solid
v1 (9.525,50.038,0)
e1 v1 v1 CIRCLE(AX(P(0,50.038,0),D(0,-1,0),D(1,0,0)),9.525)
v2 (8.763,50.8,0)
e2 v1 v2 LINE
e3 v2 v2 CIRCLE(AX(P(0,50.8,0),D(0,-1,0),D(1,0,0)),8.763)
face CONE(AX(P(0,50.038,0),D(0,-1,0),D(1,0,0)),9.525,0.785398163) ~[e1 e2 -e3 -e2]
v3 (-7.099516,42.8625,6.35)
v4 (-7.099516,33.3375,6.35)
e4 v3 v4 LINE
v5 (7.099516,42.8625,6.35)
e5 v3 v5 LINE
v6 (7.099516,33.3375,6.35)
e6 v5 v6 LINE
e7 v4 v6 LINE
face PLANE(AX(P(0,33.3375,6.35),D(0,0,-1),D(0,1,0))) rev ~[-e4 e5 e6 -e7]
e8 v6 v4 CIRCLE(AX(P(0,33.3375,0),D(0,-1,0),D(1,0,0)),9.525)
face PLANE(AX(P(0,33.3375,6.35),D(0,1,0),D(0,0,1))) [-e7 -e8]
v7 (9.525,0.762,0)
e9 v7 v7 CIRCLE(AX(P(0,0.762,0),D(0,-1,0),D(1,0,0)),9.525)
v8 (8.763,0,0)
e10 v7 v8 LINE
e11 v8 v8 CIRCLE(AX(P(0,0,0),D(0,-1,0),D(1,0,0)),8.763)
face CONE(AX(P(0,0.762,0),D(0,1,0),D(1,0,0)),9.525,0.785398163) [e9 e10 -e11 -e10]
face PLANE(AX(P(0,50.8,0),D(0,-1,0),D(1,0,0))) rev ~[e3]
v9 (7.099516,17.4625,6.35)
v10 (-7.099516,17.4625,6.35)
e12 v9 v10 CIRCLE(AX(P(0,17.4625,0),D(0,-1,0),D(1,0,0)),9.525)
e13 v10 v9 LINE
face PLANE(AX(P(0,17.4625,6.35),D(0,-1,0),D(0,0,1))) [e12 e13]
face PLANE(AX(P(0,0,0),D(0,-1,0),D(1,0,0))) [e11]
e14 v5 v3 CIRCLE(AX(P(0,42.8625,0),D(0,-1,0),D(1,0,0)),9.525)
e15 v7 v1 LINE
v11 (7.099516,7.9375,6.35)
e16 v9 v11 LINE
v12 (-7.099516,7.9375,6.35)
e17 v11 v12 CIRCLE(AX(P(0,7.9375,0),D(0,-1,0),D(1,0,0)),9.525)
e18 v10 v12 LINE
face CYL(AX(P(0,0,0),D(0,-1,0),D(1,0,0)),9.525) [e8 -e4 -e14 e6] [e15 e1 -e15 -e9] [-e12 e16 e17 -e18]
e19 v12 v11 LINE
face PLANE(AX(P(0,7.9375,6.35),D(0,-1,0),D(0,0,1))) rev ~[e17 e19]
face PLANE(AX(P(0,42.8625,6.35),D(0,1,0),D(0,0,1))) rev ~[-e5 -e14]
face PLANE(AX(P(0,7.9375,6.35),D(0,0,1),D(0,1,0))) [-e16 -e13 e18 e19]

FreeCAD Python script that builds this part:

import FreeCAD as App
import Part
import Sketcher
Q = App.Units.Quantity


def edges_at(feature, points):
    """Names of the edges that pass closest to the given points."""
    edges = feature.Shape.Edges
    near = lambda p: min(range(len(edges)), key=lambda i: edges[i].distToShape(Part.Vertex(*p))[0])
    return sorted({f"Edge{near(p) + 1}" for p in points})


def add_polygon(sketch, points):
    """Adds a closed chain of lines whose ends are joined by coincident constraints."""
    first, n = sketch.GeometryCount, len(points)
    for a, b in zip(points, points[1:] + points[:1]):
        sketch.addGeometry(Part.LineSegment(App.Vector(*a, 0), App.Vector(*b, 0)), False)
    for i in range(n):
        sketch.addConstraint(Sketcher.Constraint("Coincident", first + i, 2, first + (i + 1) % n, 1))

doc = App.newDocument("Part")
params = doc.addObject("Spreadsheet::Sheet", "Params")
for row, (alias, value) in enumerate([
    ("sketch1_diameter", "0.75 in"),
    ("pad1_length", "2 in"),
    ("chamfer_size", "0.03 in"),
    ("sketch2_width", "0.375 in"),
    ("pocket1_length", "1 in"),
], start=1):
    params.set(f"A{row}", alias)
    params.set(f"B{row}", "=" + value)
    params.setAlias(f"B{row}", alias)

body = doc.addObject("PartDesign::Body", "Body")

# Sketch on XZ plane
sketch1 = doc.addObject("Sketcher::SketchObject", "Sketch")
body.addObject(sketch1)
sketch1.AttachmentSupport = (doc.XZ_Plane, [""])
sketch1.MapMode = "FlatFace"
sketch1.addGeometry(Part.Circle(App.Vector(0, 0, 0), App.Vector(0, 0, 1), 10), False)
sketch1.addConstraint([
    Sketcher.Constraint("Coincident", 0, 3, -1, 1),
    Sketcher.Constraint("Diameter", 0, Q("0.75 in")),
])
sketch1.setExpression("Constraints[1]", "Params.sketch1_diameter")
pad1 = doc.addObject("PartDesign::Pad", "Pad")
body.addObject(pad1)
pad1.Profile = sketch1
pad1.setExpression("Length", "Params.pad1_length")
pad1.Reversed = True
doc.recompute()

chamfer = doc.addObject("PartDesign::Chamfer", "Chamfer")
body.addObject(chamfer)
chamfer.Base = (pad1, edges_at(pad1, [(-9.525, 0, 0), (-9.525, 50.8, 0)]))
chamfer.setExpression("Size", "Params.chamfer_size")

# Sketch on YZ plane
sketch2 = doc.addObject("Sketcher::SketchObject", "Sketch001")
body.addObject(sketch2)
sketch2.AttachmentSupport = (doc.YZ_Plane, [""])
sketch2.MapMode = "FlatFace"
add_polygon(sketch2, [(8, 12), (8, 6), (17, 6), (17, 12)])  # lines 0-3
add_polygon(sketch2, [(33, 12), (33, 6), (43, 6), (43, 12)])  # lines 4-7
sketch2.addConstraint([
    Sketcher.Constraint("Vertical", 0),
    Sketcher.Constraint("Horizontal", 1),
    Sketcher.Constraint("Vertical", 2),
    Sketcher.Constraint("Horizontal", 3),
    Sketcher.Constraint("Vertical", 4),
    Sketcher.Constraint("Horizontal", 5),
    Sketcher.Constraint("Vertical", 6),
    Sketcher.Constraint("Horizontal", 7),
    Sketcher.Constraint("Horizontal", 1, 2, 4, 2),
    Sketcher.Constraint("Horizontal", 3, 2, 6, 2),
    Sketcher.Constraint("Equal", 3, 5),
    Sketcher.Constraint("DistanceX", 0, 2, 4, 2, Q("1 in")),
    Sketcher.Constraint("DistanceX", 1, 1, 1, 2, Q("0.375 in")),
    Sketcher.Constraint("DistanceY", -1, 1, 0, 2, Q("0.25 in")),
    Sketcher.Constraint("DistanceX", -1, 1, 0, 2, Q("0.3125 in")),
    Sketcher.Constraint("DistanceY", 0, 2, 0, 1, Q("5.747142 mm")),
])
sketch2.setExpression("Constraints[20]", "Params.sketch2_width")
pocket1 = doc.addObject("PartDesign::Pocket", "Pocket")
body.addObject(pocket1)
pocket1.Profile = sketch2
pocket1.setExpression("Length", "Params.pocket1_length")
pocket1.Midplane = True

doc.recompute()
